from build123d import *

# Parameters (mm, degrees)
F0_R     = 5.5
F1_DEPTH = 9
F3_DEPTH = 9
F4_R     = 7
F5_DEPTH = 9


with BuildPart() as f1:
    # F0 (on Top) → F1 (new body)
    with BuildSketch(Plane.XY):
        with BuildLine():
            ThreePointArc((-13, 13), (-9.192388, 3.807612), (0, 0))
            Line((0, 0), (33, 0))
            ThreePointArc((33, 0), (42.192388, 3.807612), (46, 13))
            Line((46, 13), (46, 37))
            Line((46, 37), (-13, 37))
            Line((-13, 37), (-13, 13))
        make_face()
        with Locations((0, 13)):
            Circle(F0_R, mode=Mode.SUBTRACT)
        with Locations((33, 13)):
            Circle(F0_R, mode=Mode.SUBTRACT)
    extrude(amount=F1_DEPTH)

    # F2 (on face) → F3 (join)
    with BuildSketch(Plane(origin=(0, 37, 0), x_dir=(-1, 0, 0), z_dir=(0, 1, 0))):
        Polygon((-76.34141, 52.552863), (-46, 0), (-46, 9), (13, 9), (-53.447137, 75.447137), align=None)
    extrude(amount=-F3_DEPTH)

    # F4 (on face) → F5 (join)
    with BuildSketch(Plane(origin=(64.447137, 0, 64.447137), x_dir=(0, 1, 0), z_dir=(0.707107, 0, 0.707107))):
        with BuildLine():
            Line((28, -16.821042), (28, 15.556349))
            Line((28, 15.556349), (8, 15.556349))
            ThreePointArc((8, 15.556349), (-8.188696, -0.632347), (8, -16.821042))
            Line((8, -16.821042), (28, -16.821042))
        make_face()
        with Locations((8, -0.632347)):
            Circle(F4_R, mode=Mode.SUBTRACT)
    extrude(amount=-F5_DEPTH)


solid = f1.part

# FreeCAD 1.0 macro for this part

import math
import FreeCAD as App
import Part
import Sketcher

V = App.Vector
Q = App.Units.Quantity

doc = App.newDocument("Part")
body = doc.addObject("PartDesign::Body", "Body")

sketch1 = doc.addObject("Sketcher::SketchObject", "Sketch")
body.addObject(sketch1)
sketch1.AttachmentSupport = (doc.XY_Plane, [""])
sketch1.MapMode = "FlatFace"
sketch1.addGeometry(Part.ArcOfCircle(Part.Circle(V(0, 13, 0), V(0, 0, 1), 13), math.radians(-180), math.radians(-90)), False)
sketch1.addGeometry(Part.LineSegment(V(0, 0, 0), V(33, 0, 0)), False)
sketch1.addGeometry(Part.ArcOfCircle(Part.Circle(V(33, 13, 0), V(0, 0, 1), 13), math.radians(-90), math.radians(0)), False)
sketch1.addGeometry(Part.LineSegment(V(46, 13, 0), V(46, 37, 0)), False)
sketch1.addGeometry(Part.LineSegment(V(46, 37, 0), V(-13, 37, 0)), False)
sketch1.addGeometry(Part.LineSegment(V(-13, 37, 0), V(-13, 13, 0)), False)
sketch1.addGeometry(Part.Circle(V(0, 13, 0), V(0, 0, 1), 6), False)
sketch1.addGeometry(Part.Circle(V(33, 13, 0), V(0, 0, 1), 6), False)
sketch1.addConstraint(Sketcher.Constraint("Tangent", 0, 2, 1, 1))
sketch1.addConstraint(Sketcher.Constraint("Tangent", 1, 2, 2, 1))
sketch1.addConstraint(Sketcher.Constraint("Tangent", 2, 2, 3, 1))
sketch1.addConstraint(Sketcher.Constraint("Coincident", 3, 2, 4, 1))
sketch1.addConstraint(Sketcher.Constraint("Coincident", 4, 2, 5, 1))
sketch1.addConstraint(Sketcher.Constraint("Tangent", 5, 2, 0, 1))
sketch1.addConstraint(Sketcher.Constraint("Horizontal", 1))
sketch1.addConstraint(Sketcher.Constraint("Vertical", 3))
sketch1.addConstraint(Sketcher.Constraint("Horizontal", 4))
sketch1.addConstraint(Sketcher.Constraint("Vertical", 5))
sketch1.addConstraint(Sketcher.Constraint("Coincident", 0, 2, -1, 1))
sketch1.addConstraint(Sketcher.Constraint("Coincident", 6, 3, 0, 3))
sketch1.addConstraint(Sketcher.Constraint("Coincident", 7, 3, 2, 3))
sketch1.addConstraint(Sketcher.Constraint("Equal", 0, 2))
sketch1.addConstraint(Sketcher.Constraint("Equal", 6, 7))
sketch1.addConstraint(Sketcher.Constraint("Diameter", 6, Q("11 mm")))
sketch1.addConstraint(Sketcher.Constraint("Radius", 0, Q("13.000001 mm")))
sketch1.addConstraint(Sketcher.Constraint("DistanceX", 1, 1, 1, 2, Q("33 mm")))
sketch1.addConstraint(Sketcher.Constraint("DistanceY", 3, 1, 3, 2, Q("24 mm")))
pad1 = doc.addObject("PartDesign::Pad", "Pad")
body.addObject(pad1)
pad1.Profile = sketch1
pad1.Length = 9

sketch2 = doc.addObject("Sketcher::SketchObject", "Sketch001")
body.addObject(sketch2)
sketch2.AttachmentSupport = (doc.XZ_Plane, [""])
sketch2.MapMode = "FlatFace"
sketch2.AttachmentOffset = App.Placement(V(0, 0, -37), App.Rotation())
sketch2.addGeometry(Part.LineSegment(V(76, 53, 0), V(46, 0, 0)), False)
sketch2.addGeometry(Part.LineSegment(V(46, 0, 0), V(46, 9, 0)), False)
sketch2.addGeometry(Part.LineSegment(V(46, 9, 0), V(-13, 9, 0)), False)
sketch2.addGeometry(Part.LineSegment(V(-13, 9, 0), V(53, 75, 0)), False)
sketch2.addGeometry(Part.LineSegment(V(53, 75, 0), V(76, 53, 0)), False)
sketch2.addConstraint(Sketcher.Constraint("Coincident", 0, 2, 1, 1))
sketch2.addConstraint(Sketcher.Constraint("Coincident", 1, 2, 2, 1))
sketch2.addConstraint(Sketcher.Constraint("Coincident", 2, 2, 3, 1))
sketch2.addConstraint(Sketcher.Constraint("Coincident", 3, 2, 4, 1))
sketch2.addConstraint(Sketcher.Constraint("Coincident", 4, 2, 0, 1))
sketch2.addConstraint(Sketcher.Constraint("Vertical", 1))
sketch2.addConstraint(Sketcher.Constraint("Horizontal", 2))
sketch2.addConstraint(Sketcher.Constraint("PointOnObject", 0, 2, -1))
sketch2.addConstraint(Sketcher.Constraint("Perpendicular", 3, 4))
sketch2.addConstraint(Sketcher.Constraint("DistanceX", 2, 2, 2, 1, Q("59 mm")))
sketch2.addConstraint(Sketcher.Constraint("DistanceY", 1, 1, 1, 2, Q("9 mm")))
sketch2.addConstraint(Sketcher.Constraint("Angle", 0, Q("-120 deg")))
sketch2.addConstraint(Sketcher.Constraint("Angle", 3, Q("45 deg")))
sketch2.addConstraint(Sketcher.Constraint("DistanceX", -1, 1, 0, 2, Q("46 mm")))
sketch2.addConstraint(Sketcher.Constraint("Distance", 0, Q("60.682819 mm")))
pad2 = doc.addObject("PartDesign::Pad", "Pad001")
body.addObject(pad2)
pad2.Profile = sketch2
pad2.Length = 9

sketch3 = doc.addObject("Sketcher::SketchObject", "Sketch002")
body.addObject(sketch3)
sketch3.Placement = App.Placement(V(64.447137, 0, 64.447137), App.Rotation(V(0, 1, 0), V(-0.707106781, 0, 0.707106781), V(0.707106781, 0, 0.707106781), "ZXY"))
sketch3.addGeometry(Part.LineSegment(V(28, -17, 0), V(28, 16, 0)), False)
sketch3.addGeometry(Part.LineSegment(V(28, 16, 0), V(8, 16, 0)), False)
sketch3.addGeometry(Part.ArcOfCircle(Part.Circle(V(8, -1, 0), V(0, 0, 1), 16), math.radians(90), math.radians(270)), False)
sketch3.addGeometry(Part.LineSegment(V(8, -17, 0), V(28, -17, 0)), False)
sketch3.addGeometry(Part.Circle(V(8, -1, 0), V(0, 0, 1), 7), False)
sketch3.addConstraint(Sketcher.Constraint("Coincident", 0, 2, 1, 1))
sketch3.addConstraint(Sketcher.Constraint("Tangent", 1, 2, 2, 1))
sketch3.addConstraint(Sketcher.Constraint("Tangent", 2, 2, 3, 1))
sketch3.addConstraint(Sketcher.Constraint("Coincident", 3, 2, 0, 1))
sketch3.addConstraint(Sketcher.Constraint("Vertical", 0))
sketch3.addConstraint(Sketcher.Constraint("Horizontal", 1))
sketch3.addConstraint(Sketcher.Constraint("Horizontal", 3))
sketch3.addConstraint(Sketcher.Constraint("Coincident", 4, 3, 2, 3))
sketch3.addConstraint(Sketcher.Constraint("Diameter", 4, Q("14 mm")))
sketch3.addConstraint(Sketcher.Constraint("DistanceX", 1, 2, 1, 1, Q("20 mm")))
sketch3.addConstraint(Sketcher.Constraint("DistanceX", -1, 1, 2, 3, Q("8 mm")))
sketch3.addConstraint(Sketcher.Constraint("Radius", 2, Q("16.188696 mm")))
sketch3.addConstraint(Sketcher.Constraint("DistanceY", -1, 1, 0, 2, Q("15.556349 mm")))
pad3 = doc.addObject("PartDesign::Pad", "Pad002")
body.addObject(pad3)
pad3.Profile = sketch3
pad3.Length = 9
pad3.Reversed = True

doc.recompute()
